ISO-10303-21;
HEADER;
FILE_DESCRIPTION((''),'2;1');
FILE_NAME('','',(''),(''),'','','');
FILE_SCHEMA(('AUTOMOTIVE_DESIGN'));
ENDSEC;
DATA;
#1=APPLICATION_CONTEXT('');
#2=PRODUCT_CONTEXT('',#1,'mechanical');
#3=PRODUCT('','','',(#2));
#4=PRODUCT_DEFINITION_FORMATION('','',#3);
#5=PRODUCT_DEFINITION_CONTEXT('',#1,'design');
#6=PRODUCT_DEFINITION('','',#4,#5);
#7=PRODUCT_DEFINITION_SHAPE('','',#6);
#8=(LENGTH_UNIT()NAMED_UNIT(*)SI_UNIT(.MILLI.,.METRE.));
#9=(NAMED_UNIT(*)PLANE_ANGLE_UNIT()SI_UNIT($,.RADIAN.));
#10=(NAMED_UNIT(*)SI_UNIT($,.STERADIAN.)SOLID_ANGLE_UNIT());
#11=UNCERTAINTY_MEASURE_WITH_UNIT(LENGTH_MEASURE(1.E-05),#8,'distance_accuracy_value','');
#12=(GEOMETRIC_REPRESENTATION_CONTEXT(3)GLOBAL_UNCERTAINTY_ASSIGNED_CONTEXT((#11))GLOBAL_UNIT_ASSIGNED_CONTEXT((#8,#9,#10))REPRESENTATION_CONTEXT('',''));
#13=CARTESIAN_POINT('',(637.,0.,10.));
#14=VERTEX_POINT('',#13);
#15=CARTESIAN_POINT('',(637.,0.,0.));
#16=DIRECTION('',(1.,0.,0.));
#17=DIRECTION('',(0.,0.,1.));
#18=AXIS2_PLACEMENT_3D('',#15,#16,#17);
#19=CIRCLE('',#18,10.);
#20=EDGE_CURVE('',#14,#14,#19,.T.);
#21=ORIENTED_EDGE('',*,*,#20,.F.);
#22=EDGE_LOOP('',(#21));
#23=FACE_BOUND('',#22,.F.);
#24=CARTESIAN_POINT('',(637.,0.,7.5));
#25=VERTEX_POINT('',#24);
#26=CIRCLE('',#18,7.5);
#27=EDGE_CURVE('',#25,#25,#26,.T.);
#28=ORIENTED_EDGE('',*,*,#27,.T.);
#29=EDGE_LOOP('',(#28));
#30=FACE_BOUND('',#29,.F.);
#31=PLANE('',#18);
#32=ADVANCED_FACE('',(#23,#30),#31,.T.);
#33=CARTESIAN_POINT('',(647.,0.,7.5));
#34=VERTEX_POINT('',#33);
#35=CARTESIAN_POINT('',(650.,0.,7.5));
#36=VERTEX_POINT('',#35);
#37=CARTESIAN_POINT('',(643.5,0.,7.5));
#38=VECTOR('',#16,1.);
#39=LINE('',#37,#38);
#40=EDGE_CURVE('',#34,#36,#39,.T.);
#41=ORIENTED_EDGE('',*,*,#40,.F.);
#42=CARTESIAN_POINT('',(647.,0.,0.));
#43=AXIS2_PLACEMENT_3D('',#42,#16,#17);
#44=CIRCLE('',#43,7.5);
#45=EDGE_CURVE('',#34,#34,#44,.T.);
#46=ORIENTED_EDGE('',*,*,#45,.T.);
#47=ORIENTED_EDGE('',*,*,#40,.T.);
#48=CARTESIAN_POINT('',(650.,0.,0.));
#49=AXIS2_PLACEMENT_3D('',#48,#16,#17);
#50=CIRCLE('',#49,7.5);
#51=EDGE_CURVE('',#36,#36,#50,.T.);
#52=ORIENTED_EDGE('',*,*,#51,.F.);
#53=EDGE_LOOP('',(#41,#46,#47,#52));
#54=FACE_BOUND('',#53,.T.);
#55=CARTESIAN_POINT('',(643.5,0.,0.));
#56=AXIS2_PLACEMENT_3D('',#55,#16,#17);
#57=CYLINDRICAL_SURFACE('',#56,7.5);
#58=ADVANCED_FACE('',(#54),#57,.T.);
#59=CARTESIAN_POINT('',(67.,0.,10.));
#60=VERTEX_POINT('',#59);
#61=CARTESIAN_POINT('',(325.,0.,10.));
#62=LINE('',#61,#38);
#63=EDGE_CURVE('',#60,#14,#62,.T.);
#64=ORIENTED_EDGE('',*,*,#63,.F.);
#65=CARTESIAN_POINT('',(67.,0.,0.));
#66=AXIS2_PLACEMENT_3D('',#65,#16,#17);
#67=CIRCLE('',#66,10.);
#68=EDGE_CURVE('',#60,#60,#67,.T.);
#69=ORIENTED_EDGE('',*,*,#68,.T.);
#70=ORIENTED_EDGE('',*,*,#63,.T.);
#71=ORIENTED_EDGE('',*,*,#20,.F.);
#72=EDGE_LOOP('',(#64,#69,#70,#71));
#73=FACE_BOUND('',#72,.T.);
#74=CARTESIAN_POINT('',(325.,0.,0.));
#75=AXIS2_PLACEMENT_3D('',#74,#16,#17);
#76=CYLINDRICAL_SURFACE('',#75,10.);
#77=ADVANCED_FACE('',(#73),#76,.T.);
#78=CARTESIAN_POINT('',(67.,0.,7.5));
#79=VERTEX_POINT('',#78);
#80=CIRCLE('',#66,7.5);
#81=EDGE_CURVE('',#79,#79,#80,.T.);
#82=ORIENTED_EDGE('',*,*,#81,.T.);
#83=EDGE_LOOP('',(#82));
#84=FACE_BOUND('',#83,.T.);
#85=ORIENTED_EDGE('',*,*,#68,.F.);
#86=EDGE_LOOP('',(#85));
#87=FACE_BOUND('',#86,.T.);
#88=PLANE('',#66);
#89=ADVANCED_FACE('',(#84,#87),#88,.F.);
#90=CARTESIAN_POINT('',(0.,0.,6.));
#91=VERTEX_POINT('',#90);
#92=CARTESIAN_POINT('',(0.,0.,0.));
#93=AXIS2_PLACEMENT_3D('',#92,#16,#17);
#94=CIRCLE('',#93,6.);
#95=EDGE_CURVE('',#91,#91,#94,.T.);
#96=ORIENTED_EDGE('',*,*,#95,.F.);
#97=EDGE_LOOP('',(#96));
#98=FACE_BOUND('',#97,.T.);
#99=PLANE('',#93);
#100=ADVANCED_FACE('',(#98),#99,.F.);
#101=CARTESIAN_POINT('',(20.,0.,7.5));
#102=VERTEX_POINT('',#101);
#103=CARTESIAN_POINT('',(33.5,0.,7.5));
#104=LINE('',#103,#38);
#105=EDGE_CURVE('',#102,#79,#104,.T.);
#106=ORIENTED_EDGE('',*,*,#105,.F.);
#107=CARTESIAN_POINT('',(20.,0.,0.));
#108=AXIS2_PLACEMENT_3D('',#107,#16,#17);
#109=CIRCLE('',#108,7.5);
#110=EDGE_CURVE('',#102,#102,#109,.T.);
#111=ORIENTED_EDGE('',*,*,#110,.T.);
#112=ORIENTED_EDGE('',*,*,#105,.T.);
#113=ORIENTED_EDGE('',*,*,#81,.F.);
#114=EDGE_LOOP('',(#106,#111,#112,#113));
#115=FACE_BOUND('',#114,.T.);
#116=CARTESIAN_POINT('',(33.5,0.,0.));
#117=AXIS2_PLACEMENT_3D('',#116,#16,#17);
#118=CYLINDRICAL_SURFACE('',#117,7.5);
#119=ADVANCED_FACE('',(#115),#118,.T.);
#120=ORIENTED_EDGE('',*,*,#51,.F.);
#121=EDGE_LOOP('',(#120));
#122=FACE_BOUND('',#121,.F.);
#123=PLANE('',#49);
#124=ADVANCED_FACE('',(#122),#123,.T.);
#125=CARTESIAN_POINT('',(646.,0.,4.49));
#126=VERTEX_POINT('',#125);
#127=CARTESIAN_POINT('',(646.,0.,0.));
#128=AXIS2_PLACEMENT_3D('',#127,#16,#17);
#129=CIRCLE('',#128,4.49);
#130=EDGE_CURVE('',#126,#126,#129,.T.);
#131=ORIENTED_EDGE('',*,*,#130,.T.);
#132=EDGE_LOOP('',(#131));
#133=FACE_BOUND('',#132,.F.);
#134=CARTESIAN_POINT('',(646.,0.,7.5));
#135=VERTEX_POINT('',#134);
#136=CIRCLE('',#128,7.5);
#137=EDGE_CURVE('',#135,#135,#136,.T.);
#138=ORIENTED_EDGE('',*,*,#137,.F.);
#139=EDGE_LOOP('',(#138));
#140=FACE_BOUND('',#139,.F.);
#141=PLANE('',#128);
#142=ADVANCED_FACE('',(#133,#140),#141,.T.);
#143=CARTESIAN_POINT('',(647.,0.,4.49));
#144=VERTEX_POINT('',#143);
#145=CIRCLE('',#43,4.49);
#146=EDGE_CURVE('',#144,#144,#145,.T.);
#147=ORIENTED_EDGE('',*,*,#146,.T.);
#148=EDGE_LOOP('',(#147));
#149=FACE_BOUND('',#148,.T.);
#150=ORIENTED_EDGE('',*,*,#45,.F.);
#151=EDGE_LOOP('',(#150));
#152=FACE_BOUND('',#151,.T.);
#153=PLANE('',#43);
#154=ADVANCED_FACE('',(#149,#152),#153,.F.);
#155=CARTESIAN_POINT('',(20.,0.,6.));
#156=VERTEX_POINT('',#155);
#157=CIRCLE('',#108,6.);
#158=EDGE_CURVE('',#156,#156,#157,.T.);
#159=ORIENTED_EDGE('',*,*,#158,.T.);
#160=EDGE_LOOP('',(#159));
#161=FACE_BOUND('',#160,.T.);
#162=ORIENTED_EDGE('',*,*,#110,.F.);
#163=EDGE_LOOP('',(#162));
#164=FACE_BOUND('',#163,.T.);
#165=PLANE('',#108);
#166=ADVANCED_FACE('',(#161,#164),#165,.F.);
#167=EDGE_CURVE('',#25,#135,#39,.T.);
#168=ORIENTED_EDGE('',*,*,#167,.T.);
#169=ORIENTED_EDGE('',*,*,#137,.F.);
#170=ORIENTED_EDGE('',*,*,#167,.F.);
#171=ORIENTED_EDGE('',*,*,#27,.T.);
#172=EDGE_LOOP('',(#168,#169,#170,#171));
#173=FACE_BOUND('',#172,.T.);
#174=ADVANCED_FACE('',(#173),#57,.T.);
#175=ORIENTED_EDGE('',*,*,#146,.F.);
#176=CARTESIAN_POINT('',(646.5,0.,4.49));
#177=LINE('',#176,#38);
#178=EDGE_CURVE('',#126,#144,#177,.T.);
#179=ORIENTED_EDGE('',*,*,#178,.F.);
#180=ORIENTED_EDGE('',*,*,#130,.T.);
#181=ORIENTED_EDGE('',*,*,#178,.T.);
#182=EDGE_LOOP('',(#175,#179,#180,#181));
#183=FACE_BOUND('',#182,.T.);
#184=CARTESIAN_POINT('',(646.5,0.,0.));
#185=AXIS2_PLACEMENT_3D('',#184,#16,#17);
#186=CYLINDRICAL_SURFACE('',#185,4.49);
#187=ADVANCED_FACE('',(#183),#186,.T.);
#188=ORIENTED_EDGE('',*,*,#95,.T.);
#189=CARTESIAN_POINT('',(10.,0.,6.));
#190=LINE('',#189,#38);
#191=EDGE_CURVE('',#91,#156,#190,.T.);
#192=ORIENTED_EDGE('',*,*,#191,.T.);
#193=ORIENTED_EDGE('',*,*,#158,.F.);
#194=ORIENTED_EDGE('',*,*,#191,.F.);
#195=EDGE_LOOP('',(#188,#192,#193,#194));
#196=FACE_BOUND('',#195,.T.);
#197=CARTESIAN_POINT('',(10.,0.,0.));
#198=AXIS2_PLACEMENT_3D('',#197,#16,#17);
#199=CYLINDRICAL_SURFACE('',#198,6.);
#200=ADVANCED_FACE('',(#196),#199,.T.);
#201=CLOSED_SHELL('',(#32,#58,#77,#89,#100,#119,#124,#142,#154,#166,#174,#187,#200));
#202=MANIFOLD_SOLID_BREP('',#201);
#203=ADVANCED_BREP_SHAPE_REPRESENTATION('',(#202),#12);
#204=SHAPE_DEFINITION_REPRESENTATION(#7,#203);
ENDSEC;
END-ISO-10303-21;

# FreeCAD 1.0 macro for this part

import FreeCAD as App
import Part
import Sketcher
Q = App.Units.Quantity


def add_polygon(sketch, points):
    """Adds a closed chain of lines whose ends are joined by coincident constraints."""
    first, n = sketch.GeometryCount, len(points)
    for a, b in zip(points, points[1:] + points[:1]):
        sketch.addGeometry(Part.LineSegment(App.Vector(*a, 0), App.Vector(*b, 0)), False)
    for i in range(n):
        sketch.addConstraint(Sketcher.Constraint("Coincident", first + i, 2, first + (i + 1) % n, 1))

doc = App.newDocument("Part")
params = doc.addObject("Spreadsheet::Sheet", "Params")
for row, (alias, value) in enumerate([
    ("sketch1_width", "650 mm"),
    ("sketch1_height", "10 mm"),
    ("revolution_angle", "360 deg"),
    ("sketch2_width", "67 mm"),
    ("sketch2_height", "2.5 mm"),
    ("groove_angle", "360 deg"),
    ("sketch3_width", "20 mm"),
    ("sketch3_height", "1.5 mm"),
    ("groove2_angle", "360 deg"),
    ("sketch4_width", "9 mm"),
    ("sketch4_width2", "1 mm"),
    ("sketch4_width3", "3 mm"),
    ("sketch4_height", "2.5 mm"),
    ("sketch4_height2", "3.01 mm"),
    ("groove3_angle", "360 deg"),
], start=1):
    params.set(f"A{row}", alias)
    params.set(f"B{row}", "=" + value)
    params.setAlias(f"B{row}", alias)

body = doc.addObject("PartDesign::Body", "Body")

sketch1 = doc.addObject("Sketcher::SketchObject", "Sketch")
body.addObject(sketch1)
sketch1.AttachmentSupport = (doc.XZ_Plane, [""])
sketch1.MapMode = "FlatFace"
add_polygon(sketch1, [(0, 10), (0, 0), (650, 0), (650, 10)])
sketch1.addConstraint([
    Sketcher.Constraint("Vertical", 0),
    Sketcher.Constraint("Horizontal", 1),
    Sketcher.Constraint("Vertical", 2),
    Sketcher.Constraint("Horizontal", 3),
    Sketcher.Constraint("Coincident", 0, 2, -1, 1),
    Sketcher.Constraint("DistanceX", 1, 1, 1, 2, Q("650 mm")),
    Sketcher.Constraint("DistanceY", 0, 2, 0, 1, Q("10 mm")),
])
sketch1.setExpression("Constraints[9]", "Params.sketch1_width")
sketch1.setExpression("Constraints[10]", "Params.sketch1_height")
revolution = doc.addObject("PartDesign::Revolution", "Revolution")
body.addObject(revolution)
revolution.Profile = sketch1
revolution.ReferenceAxis = (sketch1, ["H_Axis"])
revolution.setExpression("Angle", "Params.revolution_angle")

sketch2 = doc.addObject("Sketcher::SketchObject", "Sketch001")
body.addObject(sketch2)
sketch2.AttachmentSupport = (doc.XZ_Plane, [""])
sketch2.MapMode = "FlatFace"
add_polygon(sketch2, [(0, 10), (0, 7.5), (67, 7.5), (67, 10)])
sketch2.addConstraint([
    Sketcher.Constraint("Vertical", 0),
    Sketcher.Constraint("Horizontal", 1),
    Sketcher.Constraint("Vertical", 2),
    Sketcher.Constraint("Horizontal", 3),
    Sketcher.Constraint("PointOnObject", 0, 2, -2),
    Sketcher.Constraint("DistanceX", 1, 1, 1, 2, Q("67 mm")),
    Sketcher.Constraint("DistanceY", 0, 2, 0, 1, Q("2.5 mm")),
    Sketcher.Constraint("DistanceY", -1, 1, 2, 2, Q("10 mm")),
])
sketch2.setExpression("Constraints[9]", "Params.sketch2_width")
sketch2.setExpression("Constraints[10]", "Params.sketch2_height")
groove = doc.addObject("PartDesign::Groove", "Groove")
body.addObject(groove)
groove.Profile = sketch2
groove.ReferenceAxis = (sketch2, ["H_Axis"])
groove.setExpression("Angle", "Params.groove_angle")

sketch3 = doc.addObject("Sketcher::SketchObject", "Sketch002")
body.addObject(sketch3)
sketch3.AttachmentSupport = (doc.XZ_Plane, [""])
sketch3.MapMode = "FlatFace"
add_polygon(sketch3, [(0, 7.5), (0, 6), (20, 6), (20, 7.5)])
sketch3.addConstraint([
    Sketcher.Constraint("Vertical", 0),
    Sketcher.Constraint("Horizontal", 1),
    Sketcher.Constraint("Vertical", 2),
    Sketcher.Constraint("Horizontal", 3),
    Sketcher.Constraint("PointOnObject", 0, 2, -2),
    Sketcher.Constraint("DistanceX", 1, 1, 1, 2, Q("20 mm")),
    Sketcher.Constraint("DistanceY", 0, 2, 0, 1, Q("1.5 mm")),
    Sketcher.Constraint("DistanceY", -1, 1, 0, 2, Q("6 mm")),
])
sketch3.setExpression("Constraints[9]", "Params.sketch3_width")
sketch3.setExpression("Constraints[10]", "Params.sketch3_height")
groove2 = doc.addObject("PartDesign::Groove", "Groove001")
body.addObject(groove2)
groove2.Profile = sketch3
groove2.ReferenceAxis = (sketch3, ["H_Axis"])
groove2.setExpression("Angle", "Params.groove2_angle")

sketch4 = doc.addObject("Sketcher::SketchObject", "Sketch003")
body.addObject(sketch4)
sketch4.AttachmentSupport = (doc.XZ_Plane, [""])
sketch4.MapMode = "FlatFace"
add_polygon(sketch4, [(637, 10), (637, 7.5), (646, 7.5), (646, 4.49), (647, 4.49), (647, 7.5), (650, 7.5), (650, 10)])
sketch4.addConstraint([
    Sketcher.Constraint("Vertical", 0),
    Sketcher.Constraint("Horizontal", 1),
    Sketcher.Constraint("Vertical", 2),
    Sketcher.Constraint("Horizontal", 3),
    Sketcher.Constraint("Vertical", 4),
    Sketcher.Constraint("Horizontal", 5),
    Sketcher.Constraint("Vertical", 6),
    Sketcher.Constraint("Horizontal", 7),
    Sketcher.Constraint("Horizontal", 1, 2, 4, 2),
    Sketcher.Constraint("DistanceX", 1, 1, 1, 2, Q("9 mm")),
    Sketcher.Constraint("DistanceX", 3, 1, 3, 2, Q("1 mm")),
    Sketcher.Constraint("DistanceX", 5, 1, 5, 2, Q("3 mm")),
    Sketcher.Constraint("DistanceY", 0, 2, 0, 1, Q("2.5 mm")),
    Sketcher.Constraint("DistanceX", -1, 1, 0, 2, Q("637 mm")),
    Sketcher.Constraint("DistanceY", -1, 1, 6, 2, Q("10 mm")),
    Sketcher.Constraint("DistanceY", 2, 2, 2, 1, Q("3.01 mm")),
])
sketch4.setExpression("Constraints[17]", "Params.sketch4_width")
sketch4.setExpression("Constraints[18]", "Params.sketch4_width2")
sketch4.setExpression("Constraints[19]", "Params.sketch4_width3")
sketch4.setExpression("Constraints[20]", "Params.sketch4_height")
sketch4.setExpression("Constraints[23]", "Params.sketch4_height2")
groove3 = doc.addObject("PartDesign::Groove", "Groove002")
body.addObject(groove3)
groove3.Profile = sketch4
groove3.ReferenceAxis = (sketch4, ["H_Axis"])
groove3.setExpression("Angle", "Params.groove3_angle")

doc.recompute()
